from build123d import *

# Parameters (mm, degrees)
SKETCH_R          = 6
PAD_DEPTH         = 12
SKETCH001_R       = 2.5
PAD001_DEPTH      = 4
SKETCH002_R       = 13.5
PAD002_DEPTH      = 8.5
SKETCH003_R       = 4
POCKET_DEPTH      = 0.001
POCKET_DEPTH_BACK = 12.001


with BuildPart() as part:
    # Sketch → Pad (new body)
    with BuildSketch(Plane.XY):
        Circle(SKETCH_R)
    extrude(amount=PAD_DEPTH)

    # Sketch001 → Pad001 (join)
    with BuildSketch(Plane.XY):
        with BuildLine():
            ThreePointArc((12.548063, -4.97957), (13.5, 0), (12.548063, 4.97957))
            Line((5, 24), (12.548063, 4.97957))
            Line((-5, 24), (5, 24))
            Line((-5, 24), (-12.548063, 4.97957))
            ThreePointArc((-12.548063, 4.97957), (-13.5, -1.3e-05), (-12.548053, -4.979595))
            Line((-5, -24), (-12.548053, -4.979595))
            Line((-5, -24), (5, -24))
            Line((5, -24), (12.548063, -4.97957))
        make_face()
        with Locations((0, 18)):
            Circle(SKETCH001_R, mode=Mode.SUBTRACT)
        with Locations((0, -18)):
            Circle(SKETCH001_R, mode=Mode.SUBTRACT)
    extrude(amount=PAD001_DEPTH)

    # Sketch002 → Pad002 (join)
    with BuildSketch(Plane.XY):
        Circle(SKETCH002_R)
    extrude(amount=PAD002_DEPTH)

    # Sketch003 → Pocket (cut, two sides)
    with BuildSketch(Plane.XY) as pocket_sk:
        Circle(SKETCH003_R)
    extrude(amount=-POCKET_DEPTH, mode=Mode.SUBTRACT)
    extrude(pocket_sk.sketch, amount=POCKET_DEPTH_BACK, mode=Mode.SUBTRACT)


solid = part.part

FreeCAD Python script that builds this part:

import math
import FreeCAD as App
import Part
import Sketcher
from FreeCAD import Vector

doc = App.newDocument("Part")
body = doc.addObject("PartDesign::Body", "Body")

# Sketch on XY plane
sketch1 = body.newObject("Sketcher::SketchObject", "Sketch")
sketch1.AttachmentSupport = (doc.getObject("XY_Plane"), [""])
sketch1.MapMode = "FlatFace"
sketch1.addGeometry(Part.Circle(Vector(0, 0, 0), Vector(0, 0, 1), 6), False)
sketch1.addConstraint(Sketcher.Constraint("Coincident", 0, 3, -1, 1))
sketch1.addConstraint(Sketcher.Constraint("Diameter", 0, 12.0))
pad1 = body.newObject("PartDesign::Pad", "Pad")
pad1.Profile = sketch1
pad1.Length = 12

# Sketch on XY plane
sketch2 = body.newObject("Sketcher::SketchObject", "Sketch001")
sketch2.AttachmentSupport = (doc.getObject("XY_Plane"), [""])
sketch2.MapMode = "FlatFace"
sketch2.addGeometry(Part.ArcOfCircle(Part.Circle(Vector(-0.000001, 0, 0), Vector(0, 0, 1), 13.500001), math.radians(-21.645143), math.radians(21.645143)), False)
sketch2.addGeometry(Part.LineSegment(Vector(12.548063, 4.97957, 0), Vector(5, 24, 0)), False)
sketch2.addGeometry(Part.LineSegment(Vector(5, 24, 0), Vector(-5, 24, 0)), False)
sketch2.addGeometry(Part.LineSegment(Vector(-5, 24, 0), Vector(-12.548063, 4.97957, 0)), False)
sketch2.addGeometry(Part.ArcOfCircle(Part.Circle(Vector(0.000001, 0, 0), Vector(0, 0, 1), 13.500001), math.radians(158.354857), math.radians(201.645258)), False)
sketch2.addGeometry(Part.LineSegment(Vector(-12.548053, -4.979595, 0), Vector(-5, -24, 0)), False)
sketch2.addGeometry(Part.LineSegment(Vector(-5, -24, 0), Vector(5, -24, 0)), False)
sketch2.addGeometry(Part.LineSegment(Vector(5, -24, 0), Vector(12.548063, -4.97957, 0)), False)
sketch2.addGeometry(Part.Circle(Vector(0, -18, 0), Vector(0, 0, 1), 2.5), False)
sketch2.addGeometry(Part.Circle(Vector(0, 18, 0), Vector(0, 0, 1), 2.5), False)
sketch2.addConstraint(Sketcher.Constraint("Coincident", 0, 2, 1, 1))
sketch2.addConstraint(Sketcher.Constraint("Coincident", 1, 2, 2, 1))
sketch2.addConstraint(Sketcher.Constraint("Coincident", 2, 2, 3, 1))
sketch2.addConstraint(Sketcher.Constraint("Coincident", 3, 2, 4, 1))
sketch2.addConstraint(Sketcher.Constraint("Coincident", 4, 2, 5, 1))
sketch2.addConstraint(Sketcher.Constraint("Coincident", 5, 2, 6, 1))
sketch2.addConstraint(Sketcher.Constraint("Coincident", 6, 2, 7, 1))
sketch2.addConstraint(Sketcher.Constraint("Coincident", 7, 2, 0, 1))
sketch2.addConstraint(Sketcher.Constraint("Horizontal", 2))
sketch2.addConstraint(Sketcher.Constraint("Horizontal", 6))
sketch2.addConstraint(Sketcher.Constraint("Coincident", 0, 3, -1, 1))
sketch2.addConstraint(Sketcher.Constraint("Coincident", 4, 3, -1, 1))
sketch2.addConstraint(Sketcher.Constraint("PointOnObject", 8, 3, -2))
sketch2.addConstraint(Sketcher.Constraint("PointOnObject", 9, 3, -2))
sketch2.addConstraint(Sketcher.Constraint("Diameter", 8, 5.0))
sketch2.addConstraint(Sketcher.Constraint("Diameter", 9, 5.0))
sketch2.addConstraint(Sketcher.Constraint("Radius", 0, 13.500001))
sketch2.addConstraint(Sketcher.Constraint("Radius", 4, 13.500001))
sketch2.addConstraint(Sketcher.Constraint("DistanceX", 2, 2, 2, 1, 10.0))
sketch2.addConstraint(Sketcher.Constraint("DistanceX", 6, 1, 6, 2, 10.0))
sketch2.addConstraint(Sketcher.Constraint("DistanceY", 8, 3, -1, 1, 18.0))
sketch2.addConstraint(Sketcher.Constraint("DistanceY", -1, 1, 9, 3, 18.0))
sketch2.addConstraint(Sketcher.Constraint("DistanceX", -1, 1, 1, 2, 5.0))
sketch2.addConstraint(Sketcher.Constraint("DistanceY", -1, 1, 1, 2, 24.0))
sketch2.addConstraint(Sketcher.Constraint("DistanceX", 5, 2, -1, 1, 5.0))
sketch2.addConstraint(Sketcher.Constraint("DistanceY", 5, 2, -1, 1, 24.0))
sketch2.addConstraint(Sketcher.Constraint("DistanceY", -1, 1, 0, 2, 4.97957))
sketch2.addConstraint(Sketcher.Constraint("DistanceY", -1, 1, 3, 2, 4.97957))
sketch2.addConstraint(Sketcher.Constraint("DistanceY", 7, 2, -1, 1, 4.97957))
sketch2.addConstraint(Sketcher.Constraint("DistanceX", 4, 2, 0, 3, 12.548052))
pad2 = body.newObject("PartDesign::Pad", "Pad001")
pad2.Profile = sketch2
pad2.Length = 4

# Sketch on XY plane
sketch3 = body.newObject("Sketcher::SketchObject", "Sketch002")
sketch3.AttachmentSupport = (doc.getObject("XY_Plane"), [""])
sketch3.MapMode = "FlatFace"
sketch3.addGeometry(Part.Circle(Vector(0, 0, 0), Vector(0, 0, 1), 14), False)
sketch3.addConstraint(Sketcher.Constraint("Coincident", 0, 3, -1, 1))
sketch3.addConstraint(Sketcher.Constraint("Diameter", 0, 27.0))
pad3 = body.newObject("PartDesign::Pad", "Pad002")
pad3.Profile = sketch3
pad3.Length = 8.5

# Sketch on XY plane
sketch4 = body.newObject("Sketcher::SketchObject", "Sketch003")
sketch4.AttachmentSupport = (doc.getObject("XY_Plane"), [""])
sketch4.MapMode = "FlatFace"
sketch4.addGeometry(Part.Circle(Vector(0, 0, 0), Vector(0, 0, 1), 4), False)
sketch4.addConstraint(Sketcher.Constraint("Coincident", 0, 3, -1, 1))
sketch4.addConstraint(Sketcher.Constraint("Diameter", 0, 8.0))
pocket1 = body.newObject("PartDesign::Pocket", "Pocket")
pocket1.Profile = sketch4
pocket1.Type = "ThroughAll"
pocket1.Midplane = True

doc.recompute()
